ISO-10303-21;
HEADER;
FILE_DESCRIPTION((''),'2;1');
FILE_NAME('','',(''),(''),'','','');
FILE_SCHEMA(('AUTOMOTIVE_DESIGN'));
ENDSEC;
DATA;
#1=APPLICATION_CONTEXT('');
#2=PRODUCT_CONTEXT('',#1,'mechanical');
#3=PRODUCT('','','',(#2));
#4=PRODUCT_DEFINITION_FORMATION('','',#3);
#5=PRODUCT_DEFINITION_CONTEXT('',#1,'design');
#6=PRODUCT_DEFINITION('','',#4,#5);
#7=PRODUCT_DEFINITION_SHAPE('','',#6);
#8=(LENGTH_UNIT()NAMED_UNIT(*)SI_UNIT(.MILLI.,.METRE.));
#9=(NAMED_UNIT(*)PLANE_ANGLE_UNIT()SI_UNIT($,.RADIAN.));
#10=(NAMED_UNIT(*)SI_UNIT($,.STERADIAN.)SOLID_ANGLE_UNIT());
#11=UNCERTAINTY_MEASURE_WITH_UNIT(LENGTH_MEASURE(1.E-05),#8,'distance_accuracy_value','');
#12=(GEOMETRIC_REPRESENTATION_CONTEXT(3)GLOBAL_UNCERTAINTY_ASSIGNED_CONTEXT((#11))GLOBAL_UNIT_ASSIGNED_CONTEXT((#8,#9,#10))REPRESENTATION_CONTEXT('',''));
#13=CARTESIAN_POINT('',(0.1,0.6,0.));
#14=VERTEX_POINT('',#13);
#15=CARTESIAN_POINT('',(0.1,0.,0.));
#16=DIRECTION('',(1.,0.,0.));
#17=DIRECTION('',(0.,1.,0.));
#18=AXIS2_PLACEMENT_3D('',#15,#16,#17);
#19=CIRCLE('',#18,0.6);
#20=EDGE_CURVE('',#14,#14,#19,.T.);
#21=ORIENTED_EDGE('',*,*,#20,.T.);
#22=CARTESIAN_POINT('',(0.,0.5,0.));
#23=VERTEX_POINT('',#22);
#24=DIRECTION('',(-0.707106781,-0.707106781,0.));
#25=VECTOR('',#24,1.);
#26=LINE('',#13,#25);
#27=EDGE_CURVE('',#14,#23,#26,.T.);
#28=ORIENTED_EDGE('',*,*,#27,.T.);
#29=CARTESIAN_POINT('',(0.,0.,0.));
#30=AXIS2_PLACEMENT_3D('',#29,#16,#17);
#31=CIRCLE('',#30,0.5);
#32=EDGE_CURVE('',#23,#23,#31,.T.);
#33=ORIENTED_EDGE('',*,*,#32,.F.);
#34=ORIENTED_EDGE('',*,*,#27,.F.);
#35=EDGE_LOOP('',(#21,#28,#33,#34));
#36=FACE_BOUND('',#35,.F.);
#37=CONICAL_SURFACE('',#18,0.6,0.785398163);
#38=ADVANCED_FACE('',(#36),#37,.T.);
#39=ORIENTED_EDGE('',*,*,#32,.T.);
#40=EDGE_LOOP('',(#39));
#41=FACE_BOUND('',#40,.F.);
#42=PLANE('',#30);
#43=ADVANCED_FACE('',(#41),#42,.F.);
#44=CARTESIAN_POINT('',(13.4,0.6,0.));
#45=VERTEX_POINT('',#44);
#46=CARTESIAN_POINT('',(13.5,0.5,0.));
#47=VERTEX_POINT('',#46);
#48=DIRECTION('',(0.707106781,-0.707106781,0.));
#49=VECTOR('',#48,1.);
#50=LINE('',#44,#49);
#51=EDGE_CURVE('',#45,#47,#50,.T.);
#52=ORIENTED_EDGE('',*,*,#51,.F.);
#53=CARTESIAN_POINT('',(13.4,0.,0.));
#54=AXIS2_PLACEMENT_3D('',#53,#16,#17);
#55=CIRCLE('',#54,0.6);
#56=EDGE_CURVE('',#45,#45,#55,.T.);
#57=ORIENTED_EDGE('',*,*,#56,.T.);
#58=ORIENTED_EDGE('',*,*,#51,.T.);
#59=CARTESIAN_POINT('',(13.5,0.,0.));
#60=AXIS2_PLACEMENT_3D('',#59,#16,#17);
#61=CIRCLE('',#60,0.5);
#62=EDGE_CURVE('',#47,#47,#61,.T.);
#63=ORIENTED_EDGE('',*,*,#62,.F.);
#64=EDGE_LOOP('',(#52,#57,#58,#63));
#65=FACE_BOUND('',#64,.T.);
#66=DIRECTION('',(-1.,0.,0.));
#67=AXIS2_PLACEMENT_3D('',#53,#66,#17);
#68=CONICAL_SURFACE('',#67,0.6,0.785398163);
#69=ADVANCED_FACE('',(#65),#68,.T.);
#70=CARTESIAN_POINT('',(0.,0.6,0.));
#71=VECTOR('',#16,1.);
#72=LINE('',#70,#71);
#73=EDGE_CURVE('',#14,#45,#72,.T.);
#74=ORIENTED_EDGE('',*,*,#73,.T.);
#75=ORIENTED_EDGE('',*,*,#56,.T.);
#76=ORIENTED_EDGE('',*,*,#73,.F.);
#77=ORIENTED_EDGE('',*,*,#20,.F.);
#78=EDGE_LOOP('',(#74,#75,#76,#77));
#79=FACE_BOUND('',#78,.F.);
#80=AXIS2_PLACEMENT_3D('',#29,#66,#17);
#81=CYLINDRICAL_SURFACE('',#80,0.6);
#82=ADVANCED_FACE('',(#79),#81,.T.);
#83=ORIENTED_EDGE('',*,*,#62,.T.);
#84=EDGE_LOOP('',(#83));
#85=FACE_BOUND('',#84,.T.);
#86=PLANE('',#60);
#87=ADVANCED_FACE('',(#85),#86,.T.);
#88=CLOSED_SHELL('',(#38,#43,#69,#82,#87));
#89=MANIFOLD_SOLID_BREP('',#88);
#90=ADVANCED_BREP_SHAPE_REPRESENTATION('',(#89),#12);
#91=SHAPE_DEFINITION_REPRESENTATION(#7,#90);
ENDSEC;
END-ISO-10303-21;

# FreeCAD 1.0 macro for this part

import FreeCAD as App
import Part
import Sketcher

V = App.Vector
Q = App.Units.Quantity


def edges_at(feature, points):
    """Names of the edges that pass closest to the given points."""
    edges = feature.Shape.Edges
    near = lambda p: min(range(len(edges)), key=lambda i: edges[i].distToShape(Part.Vertex(*p))[0])
    return sorted({f"Edge{near(p) + 1}" for p in points})

doc = App.newDocument("Part")
body = doc.addObject("PartDesign::Body", "Body")

sketch1 = body.newObject("Sketcher::SketchObject", "Sketch")
sketch1.AttachmentSupport = (doc.getObject("YZ_Plane"), [""])
sketch1.MapMode = "FlatFace"
sketch1.addGeometry(Part.Circle(V(0, 0, 0), V(0, 0, 1), 0.6), False)
sketch1.addConstraint([
    Sketcher.Constraint("Coincident", 0, 3, -1, 1),
    Sketcher.Constraint("Diameter", 0, Q("1.2 mm")),
])
pad1 = body.newObject("PartDesign::Pad", "Pad")
pad1.Profile = sketch1
pad1.Length = 13.5
doc.recompute()

chamfer = body.newObject("PartDesign::Chamfer", "Chamfer")
chamfer.Base = (pad1, edges_at(pad1, [(0, -0.6, 0), (13.5, -0.6, 0)]))
chamfer.Size = 0.1

doc.recompute()
